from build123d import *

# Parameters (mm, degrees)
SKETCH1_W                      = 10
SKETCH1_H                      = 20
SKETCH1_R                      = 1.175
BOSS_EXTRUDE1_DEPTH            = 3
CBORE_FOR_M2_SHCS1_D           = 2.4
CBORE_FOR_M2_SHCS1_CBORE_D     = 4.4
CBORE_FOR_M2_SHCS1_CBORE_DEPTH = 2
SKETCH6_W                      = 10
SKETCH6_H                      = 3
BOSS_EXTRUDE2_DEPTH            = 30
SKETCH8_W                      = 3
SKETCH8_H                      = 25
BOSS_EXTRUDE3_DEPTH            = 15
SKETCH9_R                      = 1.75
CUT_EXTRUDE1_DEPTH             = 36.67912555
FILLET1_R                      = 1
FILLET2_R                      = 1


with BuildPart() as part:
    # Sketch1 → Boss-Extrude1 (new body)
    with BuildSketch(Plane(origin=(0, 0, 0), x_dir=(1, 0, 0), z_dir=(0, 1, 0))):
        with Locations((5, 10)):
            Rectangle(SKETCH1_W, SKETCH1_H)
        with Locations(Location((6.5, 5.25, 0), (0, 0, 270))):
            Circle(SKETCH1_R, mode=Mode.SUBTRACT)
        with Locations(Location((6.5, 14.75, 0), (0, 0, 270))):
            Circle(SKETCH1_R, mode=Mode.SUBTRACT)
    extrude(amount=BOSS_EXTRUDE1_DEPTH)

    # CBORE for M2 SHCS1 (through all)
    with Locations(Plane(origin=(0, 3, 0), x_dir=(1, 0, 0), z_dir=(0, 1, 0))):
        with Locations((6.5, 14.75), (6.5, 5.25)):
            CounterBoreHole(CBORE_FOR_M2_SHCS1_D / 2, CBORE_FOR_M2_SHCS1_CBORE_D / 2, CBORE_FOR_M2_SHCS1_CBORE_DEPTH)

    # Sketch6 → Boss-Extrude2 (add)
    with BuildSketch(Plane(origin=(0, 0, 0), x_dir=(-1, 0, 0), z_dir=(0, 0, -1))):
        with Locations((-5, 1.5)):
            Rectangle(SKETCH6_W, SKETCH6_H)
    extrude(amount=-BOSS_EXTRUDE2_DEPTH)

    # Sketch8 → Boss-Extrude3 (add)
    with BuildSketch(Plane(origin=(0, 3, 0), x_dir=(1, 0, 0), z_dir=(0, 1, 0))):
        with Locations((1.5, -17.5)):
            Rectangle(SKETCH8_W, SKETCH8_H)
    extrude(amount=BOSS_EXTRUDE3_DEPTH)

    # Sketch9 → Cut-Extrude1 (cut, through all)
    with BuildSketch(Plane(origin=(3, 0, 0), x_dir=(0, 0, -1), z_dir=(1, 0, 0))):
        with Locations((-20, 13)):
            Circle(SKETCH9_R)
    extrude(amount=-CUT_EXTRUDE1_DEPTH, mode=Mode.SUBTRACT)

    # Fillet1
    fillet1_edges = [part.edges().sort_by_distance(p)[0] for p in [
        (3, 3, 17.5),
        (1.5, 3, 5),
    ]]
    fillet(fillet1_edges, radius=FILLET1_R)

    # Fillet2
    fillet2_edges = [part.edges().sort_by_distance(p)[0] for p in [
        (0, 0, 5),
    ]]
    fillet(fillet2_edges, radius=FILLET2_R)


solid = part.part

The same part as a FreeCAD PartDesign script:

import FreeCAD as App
import Part
import Sketcher

V = App.Vector


def edges_at(feature, points):
    """Names of the edges that pass closest to the given points."""
    edges = feature.Shape.Edges
    near = lambda p: min(range(len(edges)), key=lambda i: edges[i].distToShape(Part.Vertex(*p))[0])
    return sorted({f"Edge{near(p) + 1}" for p in points})


def add_polygon(sketch, points):
    """Adds a closed chain of lines whose ends are joined by coincident constraints."""
    first, n = sketch.GeometryCount, len(points)
    for a, b in zip(points, points[1:] + points[:1]):
        sketch.addGeometry(Part.LineSegment(App.Vector(*a, 0), App.Vector(*b, 0)), False)
    for i in range(n):
        sketch.addConstraint(Sketcher.Constraint("Coincident", first + i, 2, first + (i + 1) % n, 1))

doc = App.newDocument("Part")
params = doc.addObject("Spreadsheet::Sheet", "Params")
for row, (alias, value) in enumerate([
    ("sketch1_diameter", "2.35 mm"),
    ("sketch1_width", "10 mm"),
    ("sketch1_height", "20 mm"),
    ("pad1_length", "3 mm"),
    ("sketch2_diameter", "2.4 mm"),
    ("hole_diameter", "2.4 mm"),
    ("hole_cbore_diameter", "4.4 mm"),
    ("hole_cbore_depth", "2 mm"),
    ("sketch3_width", "10 mm"),
    ("sketch3_height", "3 mm"),
    ("pad2_length", "30 mm"),
    ("sketch4_width", "3 mm"),
    ("sketch4_height", "25 mm"),
    ("pad3_length", "15 mm"),
    ("sketch5_diameter", "3.5 mm"),
    ("fillet_radius", "1 mm"),
    ("fillet2_radius", "1 mm"),
], start=1):
    params.set(f"A{row}", alias)
    params.set(f"B{row}", "=" + value)
    params.setAlias(f"B{row}", alias)

body = doc.addObject("PartDesign::Body", "Body")

# Sketch on XZ plane
sketch1 = body.newObject("Sketcher::SketchObject", "Sketch")
sketch1.AttachmentSupport = (doc.getObject("XZ_Plane"), [""])
sketch1.MapMode = "FlatFace"
add_polygon(sketch1, [(0, -20), (0, 0), (10, 0), (10, -20)])  # lines 0-3
sketch1.addGeometry(Part.Circle(V(6.5, -5.2, 0), V(0, 0, 1), 1.2), False)  # 4
sketch1.addGeometry(Part.Circle(V(6.5, -14.8, 0), V(0, 0, 1), 1.2), False)  # 5
sketch1.addConstraint(Sketcher.Constraint("Vertical", 0))
sketch1.addConstraint(Sketcher.Constraint("Horizontal", 1))
sketch1.addConstraint(Sketcher.Constraint("Vertical", 2))
sketch1.addConstraint(Sketcher.Constraint("Horizontal", 3))
sketch1.addConstraint(Sketcher.Constraint("Coincident", 0, 2, -1, 1))
sketch1.addConstraint(Sketcher.Constraint("Equal", 4, 5))
sketch1.addConstraint(Sketcher.Constraint("Vertical", 4, 3, 5, 3))
sketch1.addConstraint(Sketcher.Constraint("Diameter", 4, 2.35))
sketch1.addConstraint(Sketcher.Constraint("DistanceX", 1, 1, 1, 2, 10.0))
sketch1.addConstraint(Sketcher.Constraint("DistanceY", 0, 1, 0, 2, 20.0))
sketch1.addConstraint(Sketcher.Constraint("DistanceX", -1, 1, 4, 3, 6.5))
sketch1.addConstraint(Sketcher.Constraint("DistanceY", 5, 3, 4, 3, 9.5))
sketch1.addConstraint(Sketcher.Constraint("DistanceY", 4, 3, -1, 1, 5.25))
sketch1.setExpression("Constraints[11]", "Params.sketch1_diameter")
sketch1.setExpression("Constraints[12]", "Params.sketch1_width")
sketch1.setExpression("Constraints[13]", "Params.sketch1_height")
pad1 = body.newObject("PartDesign::Pad", "Pad")
pad1.Profile = sketch1
pad1.setExpression("Length", "Params.pad1_length")
pad1.Reversed = True

# Sketch on XZ plane
sketch2 = body.newObject("Sketcher::SketchObject", "Sketch001")
sketch2.AttachmentSupport = (doc.getObject("XZ_Plane"), [""])
sketch2.MapMode = "FlatFace"
sketch2.AttachmentOffset = App.Placement(V(0, 0, -3), App.Rotation())
sketch2.addGeometry(Part.Circle(V(6.5, -14.8, 0), V(0, 0, 1), 1.2), False)
sketch2.addGeometry(Part.Circle(V(6.5, -5.2, 0), V(0, 0, 1), 1.2), False)
sketch2.addConstraint(Sketcher.Constraint("Equal", 0, 1))
sketch2.addConstraint(Sketcher.Constraint("Vertical", 0, 3, 1, 3))
sketch2.addConstraint(Sketcher.Constraint("Diameter", 0, 2.4))
sketch2.addConstraint(Sketcher.Constraint("DistanceX", -1, 1, 0, 3, 6.5))
sketch2.addConstraint(Sketcher.Constraint("DistanceY", 0, 3, 1, 3, 9.5))
sketch2.addConstraint(Sketcher.Constraint("DistanceY", 0, 3, -1, 1, 14.75))
sketch2.setExpression("Constraints[2]", "Params.sketch2_diameter")
doc.recompute()
hole = body.newObject("PartDesign::Hole", "Hole")
hole.Profile = sketch2
hole.ThreadType = "None"
hole.setExpression("Diameter", "Params.hole_diameter")
hole.DepthType = "ThroughAll"
hole.HoleCutType = "Counterbore"
hole.setExpression("HoleCutDiameter", "Params.hole_cbore_diameter")
hole.setExpression("HoleCutDepth", "Params.hole_cbore_depth")
hole.Reversed = True

# Sketch on XY plane
sketch3 = body.newObject("Sketcher::SketchObject", "Sketch002")
sketch3.AttachmentSupport = (doc.getObject("XY_Plane"), [""])
sketch3.MapMode = "FlatFace"
add_polygon(sketch3, [(10, 3), (10, 0), (0, 0), (0, 3)])  # lines 0-3
sketch3.addConstraint(Sketcher.Constraint("Vertical", 0))
sketch3.addConstraint(Sketcher.Constraint("Horizontal", 1))
sketch3.addConstraint(Sketcher.Constraint("Vertical", 2))
sketch3.addConstraint(Sketcher.Constraint("Horizontal", 3))
sketch3.addConstraint(Sketcher.Constraint("Coincident", 1, 2, -1, 1))
sketch3.addConstraint(Sketcher.Constraint("DistanceX", 1, 2, 1, 1, 10.0))
sketch3.addConstraint(Sketcher.Constraint("DistanceY", 0, 2, 0, 1, 3.0))
sketch3.setExpression("Constraints[9]", "Params.sketch3_width")
sketch3.setExpression("Constraints[10]", "Params.sketch3_height")
pad2 = body.newObject("PartDesign::Pad", "Pad001")
pad2.Profile = sketch3
pad2.setExpression("Length", "Params.pad2_length")

# Sketch on XZ plane
sketch4 = body.newObject("Sketcher::SketchObject", "Sketch003")
sketch4.AttachmentSupport = (doc.getObject("XZ_Plane"), [""])
sketch4.MapMode = "FlatFace"
sketch4.AttachmentOffset = App.Placement(V(0, 0, -3), App.Rotation())
add_polygon(sketch4, [(0, 5), (0, 30), (3, 30), (3, 5)])  # lines 0-3
sketch4.addConstraint(Sketcher.Constraint("Vertical", 0))
sketch4.addConstraint(Sketcher.Constraint("Horizontal", 1))
sketch4.addConstraint(Sketcher.Constraint("Vertical", 2))
sketch4.addConstraint(Sketcher.Constraint("Horizontal", 3))
sketch4.addConstraint(Sketcher.Constraint("PointOnObject", 0, 2, -2))
sketch4.addConstraint(Sketcher.Constraint("DistanceX", 1, 1, 1, 2, 3.0))
sketch4.addConstraint(Sketcher.Constraint("DistanceY", 0, 1, 0, 2, 25.0))
sketch4.addConstraint(Sketcher.Constraint("DistanceY", -1, 1, 0, 2, 30.0))
sketch4.setExpression("Constraints[9]", "Params.sketch4_width")
sketch4.setExpression("Constraints[10]", "Params.sketch4_height")
pad3 = body.newObject("PartDesign::Pad", "Pad002")
pad3.Profile = sketch4
pad3.setExpression("Length", "Params.pad3_length")
pad3.Reversed = True

# Sketch on YZ plane
sketch5 = body.newObject("Sketcher::SketchObject", "Sketch004")
sketch5.AttachmentSupport = (doc.getObject("YZ_Plane"), [""])
sketch5.MapMode = "FlatFace"
sketch5.AttachmentOffset = App.Placement(V(0, 0, 3), App.Rotation())
sketch5.addGeometry(Part.Circle(V(13, 20, 0), V(0, 0, 1), 1.8), False)
sketch5.addConstraint(Sketcher.Constraint("Diameter", 0, 3.5))
sketch5.addConstraint(Sketcher.Constraint("DistanceX", -1, 1, 0, 3, 13.0))
sketch5.addConstraint(Sketcher.Constraint("DistanceY", -1, 1, 0, 3, 20.0))
sketch5.setExpression("Constraints[0]", "Params.sketch5_diameter")
pocket1 = body.newObject("PartDesign::Pocket", "Pocket")
pocket1.Profile = sketch5
pocket1.Type = "ThroughAll"
doc.recompute()

fillet = body.newObject("PartDesign::Fillet", "Fillet")
fillet.Base = (pocket1, edges_at(pocket1, [(3, 3, 17.5), (1.5, 3, 5)]))
fillet.setExpression("Radius", "Params.fillet_radius")
doc.recompute()

fillet2 = body.newObject("PartDesign::Fillet", "Fillet001")
fillet2.Base = (fillet, edges_at(fillet, [(0, 0, 5)]))
fillet2.setExpression("Radius", "Params.fillet2_radius")

doc.recompute()
